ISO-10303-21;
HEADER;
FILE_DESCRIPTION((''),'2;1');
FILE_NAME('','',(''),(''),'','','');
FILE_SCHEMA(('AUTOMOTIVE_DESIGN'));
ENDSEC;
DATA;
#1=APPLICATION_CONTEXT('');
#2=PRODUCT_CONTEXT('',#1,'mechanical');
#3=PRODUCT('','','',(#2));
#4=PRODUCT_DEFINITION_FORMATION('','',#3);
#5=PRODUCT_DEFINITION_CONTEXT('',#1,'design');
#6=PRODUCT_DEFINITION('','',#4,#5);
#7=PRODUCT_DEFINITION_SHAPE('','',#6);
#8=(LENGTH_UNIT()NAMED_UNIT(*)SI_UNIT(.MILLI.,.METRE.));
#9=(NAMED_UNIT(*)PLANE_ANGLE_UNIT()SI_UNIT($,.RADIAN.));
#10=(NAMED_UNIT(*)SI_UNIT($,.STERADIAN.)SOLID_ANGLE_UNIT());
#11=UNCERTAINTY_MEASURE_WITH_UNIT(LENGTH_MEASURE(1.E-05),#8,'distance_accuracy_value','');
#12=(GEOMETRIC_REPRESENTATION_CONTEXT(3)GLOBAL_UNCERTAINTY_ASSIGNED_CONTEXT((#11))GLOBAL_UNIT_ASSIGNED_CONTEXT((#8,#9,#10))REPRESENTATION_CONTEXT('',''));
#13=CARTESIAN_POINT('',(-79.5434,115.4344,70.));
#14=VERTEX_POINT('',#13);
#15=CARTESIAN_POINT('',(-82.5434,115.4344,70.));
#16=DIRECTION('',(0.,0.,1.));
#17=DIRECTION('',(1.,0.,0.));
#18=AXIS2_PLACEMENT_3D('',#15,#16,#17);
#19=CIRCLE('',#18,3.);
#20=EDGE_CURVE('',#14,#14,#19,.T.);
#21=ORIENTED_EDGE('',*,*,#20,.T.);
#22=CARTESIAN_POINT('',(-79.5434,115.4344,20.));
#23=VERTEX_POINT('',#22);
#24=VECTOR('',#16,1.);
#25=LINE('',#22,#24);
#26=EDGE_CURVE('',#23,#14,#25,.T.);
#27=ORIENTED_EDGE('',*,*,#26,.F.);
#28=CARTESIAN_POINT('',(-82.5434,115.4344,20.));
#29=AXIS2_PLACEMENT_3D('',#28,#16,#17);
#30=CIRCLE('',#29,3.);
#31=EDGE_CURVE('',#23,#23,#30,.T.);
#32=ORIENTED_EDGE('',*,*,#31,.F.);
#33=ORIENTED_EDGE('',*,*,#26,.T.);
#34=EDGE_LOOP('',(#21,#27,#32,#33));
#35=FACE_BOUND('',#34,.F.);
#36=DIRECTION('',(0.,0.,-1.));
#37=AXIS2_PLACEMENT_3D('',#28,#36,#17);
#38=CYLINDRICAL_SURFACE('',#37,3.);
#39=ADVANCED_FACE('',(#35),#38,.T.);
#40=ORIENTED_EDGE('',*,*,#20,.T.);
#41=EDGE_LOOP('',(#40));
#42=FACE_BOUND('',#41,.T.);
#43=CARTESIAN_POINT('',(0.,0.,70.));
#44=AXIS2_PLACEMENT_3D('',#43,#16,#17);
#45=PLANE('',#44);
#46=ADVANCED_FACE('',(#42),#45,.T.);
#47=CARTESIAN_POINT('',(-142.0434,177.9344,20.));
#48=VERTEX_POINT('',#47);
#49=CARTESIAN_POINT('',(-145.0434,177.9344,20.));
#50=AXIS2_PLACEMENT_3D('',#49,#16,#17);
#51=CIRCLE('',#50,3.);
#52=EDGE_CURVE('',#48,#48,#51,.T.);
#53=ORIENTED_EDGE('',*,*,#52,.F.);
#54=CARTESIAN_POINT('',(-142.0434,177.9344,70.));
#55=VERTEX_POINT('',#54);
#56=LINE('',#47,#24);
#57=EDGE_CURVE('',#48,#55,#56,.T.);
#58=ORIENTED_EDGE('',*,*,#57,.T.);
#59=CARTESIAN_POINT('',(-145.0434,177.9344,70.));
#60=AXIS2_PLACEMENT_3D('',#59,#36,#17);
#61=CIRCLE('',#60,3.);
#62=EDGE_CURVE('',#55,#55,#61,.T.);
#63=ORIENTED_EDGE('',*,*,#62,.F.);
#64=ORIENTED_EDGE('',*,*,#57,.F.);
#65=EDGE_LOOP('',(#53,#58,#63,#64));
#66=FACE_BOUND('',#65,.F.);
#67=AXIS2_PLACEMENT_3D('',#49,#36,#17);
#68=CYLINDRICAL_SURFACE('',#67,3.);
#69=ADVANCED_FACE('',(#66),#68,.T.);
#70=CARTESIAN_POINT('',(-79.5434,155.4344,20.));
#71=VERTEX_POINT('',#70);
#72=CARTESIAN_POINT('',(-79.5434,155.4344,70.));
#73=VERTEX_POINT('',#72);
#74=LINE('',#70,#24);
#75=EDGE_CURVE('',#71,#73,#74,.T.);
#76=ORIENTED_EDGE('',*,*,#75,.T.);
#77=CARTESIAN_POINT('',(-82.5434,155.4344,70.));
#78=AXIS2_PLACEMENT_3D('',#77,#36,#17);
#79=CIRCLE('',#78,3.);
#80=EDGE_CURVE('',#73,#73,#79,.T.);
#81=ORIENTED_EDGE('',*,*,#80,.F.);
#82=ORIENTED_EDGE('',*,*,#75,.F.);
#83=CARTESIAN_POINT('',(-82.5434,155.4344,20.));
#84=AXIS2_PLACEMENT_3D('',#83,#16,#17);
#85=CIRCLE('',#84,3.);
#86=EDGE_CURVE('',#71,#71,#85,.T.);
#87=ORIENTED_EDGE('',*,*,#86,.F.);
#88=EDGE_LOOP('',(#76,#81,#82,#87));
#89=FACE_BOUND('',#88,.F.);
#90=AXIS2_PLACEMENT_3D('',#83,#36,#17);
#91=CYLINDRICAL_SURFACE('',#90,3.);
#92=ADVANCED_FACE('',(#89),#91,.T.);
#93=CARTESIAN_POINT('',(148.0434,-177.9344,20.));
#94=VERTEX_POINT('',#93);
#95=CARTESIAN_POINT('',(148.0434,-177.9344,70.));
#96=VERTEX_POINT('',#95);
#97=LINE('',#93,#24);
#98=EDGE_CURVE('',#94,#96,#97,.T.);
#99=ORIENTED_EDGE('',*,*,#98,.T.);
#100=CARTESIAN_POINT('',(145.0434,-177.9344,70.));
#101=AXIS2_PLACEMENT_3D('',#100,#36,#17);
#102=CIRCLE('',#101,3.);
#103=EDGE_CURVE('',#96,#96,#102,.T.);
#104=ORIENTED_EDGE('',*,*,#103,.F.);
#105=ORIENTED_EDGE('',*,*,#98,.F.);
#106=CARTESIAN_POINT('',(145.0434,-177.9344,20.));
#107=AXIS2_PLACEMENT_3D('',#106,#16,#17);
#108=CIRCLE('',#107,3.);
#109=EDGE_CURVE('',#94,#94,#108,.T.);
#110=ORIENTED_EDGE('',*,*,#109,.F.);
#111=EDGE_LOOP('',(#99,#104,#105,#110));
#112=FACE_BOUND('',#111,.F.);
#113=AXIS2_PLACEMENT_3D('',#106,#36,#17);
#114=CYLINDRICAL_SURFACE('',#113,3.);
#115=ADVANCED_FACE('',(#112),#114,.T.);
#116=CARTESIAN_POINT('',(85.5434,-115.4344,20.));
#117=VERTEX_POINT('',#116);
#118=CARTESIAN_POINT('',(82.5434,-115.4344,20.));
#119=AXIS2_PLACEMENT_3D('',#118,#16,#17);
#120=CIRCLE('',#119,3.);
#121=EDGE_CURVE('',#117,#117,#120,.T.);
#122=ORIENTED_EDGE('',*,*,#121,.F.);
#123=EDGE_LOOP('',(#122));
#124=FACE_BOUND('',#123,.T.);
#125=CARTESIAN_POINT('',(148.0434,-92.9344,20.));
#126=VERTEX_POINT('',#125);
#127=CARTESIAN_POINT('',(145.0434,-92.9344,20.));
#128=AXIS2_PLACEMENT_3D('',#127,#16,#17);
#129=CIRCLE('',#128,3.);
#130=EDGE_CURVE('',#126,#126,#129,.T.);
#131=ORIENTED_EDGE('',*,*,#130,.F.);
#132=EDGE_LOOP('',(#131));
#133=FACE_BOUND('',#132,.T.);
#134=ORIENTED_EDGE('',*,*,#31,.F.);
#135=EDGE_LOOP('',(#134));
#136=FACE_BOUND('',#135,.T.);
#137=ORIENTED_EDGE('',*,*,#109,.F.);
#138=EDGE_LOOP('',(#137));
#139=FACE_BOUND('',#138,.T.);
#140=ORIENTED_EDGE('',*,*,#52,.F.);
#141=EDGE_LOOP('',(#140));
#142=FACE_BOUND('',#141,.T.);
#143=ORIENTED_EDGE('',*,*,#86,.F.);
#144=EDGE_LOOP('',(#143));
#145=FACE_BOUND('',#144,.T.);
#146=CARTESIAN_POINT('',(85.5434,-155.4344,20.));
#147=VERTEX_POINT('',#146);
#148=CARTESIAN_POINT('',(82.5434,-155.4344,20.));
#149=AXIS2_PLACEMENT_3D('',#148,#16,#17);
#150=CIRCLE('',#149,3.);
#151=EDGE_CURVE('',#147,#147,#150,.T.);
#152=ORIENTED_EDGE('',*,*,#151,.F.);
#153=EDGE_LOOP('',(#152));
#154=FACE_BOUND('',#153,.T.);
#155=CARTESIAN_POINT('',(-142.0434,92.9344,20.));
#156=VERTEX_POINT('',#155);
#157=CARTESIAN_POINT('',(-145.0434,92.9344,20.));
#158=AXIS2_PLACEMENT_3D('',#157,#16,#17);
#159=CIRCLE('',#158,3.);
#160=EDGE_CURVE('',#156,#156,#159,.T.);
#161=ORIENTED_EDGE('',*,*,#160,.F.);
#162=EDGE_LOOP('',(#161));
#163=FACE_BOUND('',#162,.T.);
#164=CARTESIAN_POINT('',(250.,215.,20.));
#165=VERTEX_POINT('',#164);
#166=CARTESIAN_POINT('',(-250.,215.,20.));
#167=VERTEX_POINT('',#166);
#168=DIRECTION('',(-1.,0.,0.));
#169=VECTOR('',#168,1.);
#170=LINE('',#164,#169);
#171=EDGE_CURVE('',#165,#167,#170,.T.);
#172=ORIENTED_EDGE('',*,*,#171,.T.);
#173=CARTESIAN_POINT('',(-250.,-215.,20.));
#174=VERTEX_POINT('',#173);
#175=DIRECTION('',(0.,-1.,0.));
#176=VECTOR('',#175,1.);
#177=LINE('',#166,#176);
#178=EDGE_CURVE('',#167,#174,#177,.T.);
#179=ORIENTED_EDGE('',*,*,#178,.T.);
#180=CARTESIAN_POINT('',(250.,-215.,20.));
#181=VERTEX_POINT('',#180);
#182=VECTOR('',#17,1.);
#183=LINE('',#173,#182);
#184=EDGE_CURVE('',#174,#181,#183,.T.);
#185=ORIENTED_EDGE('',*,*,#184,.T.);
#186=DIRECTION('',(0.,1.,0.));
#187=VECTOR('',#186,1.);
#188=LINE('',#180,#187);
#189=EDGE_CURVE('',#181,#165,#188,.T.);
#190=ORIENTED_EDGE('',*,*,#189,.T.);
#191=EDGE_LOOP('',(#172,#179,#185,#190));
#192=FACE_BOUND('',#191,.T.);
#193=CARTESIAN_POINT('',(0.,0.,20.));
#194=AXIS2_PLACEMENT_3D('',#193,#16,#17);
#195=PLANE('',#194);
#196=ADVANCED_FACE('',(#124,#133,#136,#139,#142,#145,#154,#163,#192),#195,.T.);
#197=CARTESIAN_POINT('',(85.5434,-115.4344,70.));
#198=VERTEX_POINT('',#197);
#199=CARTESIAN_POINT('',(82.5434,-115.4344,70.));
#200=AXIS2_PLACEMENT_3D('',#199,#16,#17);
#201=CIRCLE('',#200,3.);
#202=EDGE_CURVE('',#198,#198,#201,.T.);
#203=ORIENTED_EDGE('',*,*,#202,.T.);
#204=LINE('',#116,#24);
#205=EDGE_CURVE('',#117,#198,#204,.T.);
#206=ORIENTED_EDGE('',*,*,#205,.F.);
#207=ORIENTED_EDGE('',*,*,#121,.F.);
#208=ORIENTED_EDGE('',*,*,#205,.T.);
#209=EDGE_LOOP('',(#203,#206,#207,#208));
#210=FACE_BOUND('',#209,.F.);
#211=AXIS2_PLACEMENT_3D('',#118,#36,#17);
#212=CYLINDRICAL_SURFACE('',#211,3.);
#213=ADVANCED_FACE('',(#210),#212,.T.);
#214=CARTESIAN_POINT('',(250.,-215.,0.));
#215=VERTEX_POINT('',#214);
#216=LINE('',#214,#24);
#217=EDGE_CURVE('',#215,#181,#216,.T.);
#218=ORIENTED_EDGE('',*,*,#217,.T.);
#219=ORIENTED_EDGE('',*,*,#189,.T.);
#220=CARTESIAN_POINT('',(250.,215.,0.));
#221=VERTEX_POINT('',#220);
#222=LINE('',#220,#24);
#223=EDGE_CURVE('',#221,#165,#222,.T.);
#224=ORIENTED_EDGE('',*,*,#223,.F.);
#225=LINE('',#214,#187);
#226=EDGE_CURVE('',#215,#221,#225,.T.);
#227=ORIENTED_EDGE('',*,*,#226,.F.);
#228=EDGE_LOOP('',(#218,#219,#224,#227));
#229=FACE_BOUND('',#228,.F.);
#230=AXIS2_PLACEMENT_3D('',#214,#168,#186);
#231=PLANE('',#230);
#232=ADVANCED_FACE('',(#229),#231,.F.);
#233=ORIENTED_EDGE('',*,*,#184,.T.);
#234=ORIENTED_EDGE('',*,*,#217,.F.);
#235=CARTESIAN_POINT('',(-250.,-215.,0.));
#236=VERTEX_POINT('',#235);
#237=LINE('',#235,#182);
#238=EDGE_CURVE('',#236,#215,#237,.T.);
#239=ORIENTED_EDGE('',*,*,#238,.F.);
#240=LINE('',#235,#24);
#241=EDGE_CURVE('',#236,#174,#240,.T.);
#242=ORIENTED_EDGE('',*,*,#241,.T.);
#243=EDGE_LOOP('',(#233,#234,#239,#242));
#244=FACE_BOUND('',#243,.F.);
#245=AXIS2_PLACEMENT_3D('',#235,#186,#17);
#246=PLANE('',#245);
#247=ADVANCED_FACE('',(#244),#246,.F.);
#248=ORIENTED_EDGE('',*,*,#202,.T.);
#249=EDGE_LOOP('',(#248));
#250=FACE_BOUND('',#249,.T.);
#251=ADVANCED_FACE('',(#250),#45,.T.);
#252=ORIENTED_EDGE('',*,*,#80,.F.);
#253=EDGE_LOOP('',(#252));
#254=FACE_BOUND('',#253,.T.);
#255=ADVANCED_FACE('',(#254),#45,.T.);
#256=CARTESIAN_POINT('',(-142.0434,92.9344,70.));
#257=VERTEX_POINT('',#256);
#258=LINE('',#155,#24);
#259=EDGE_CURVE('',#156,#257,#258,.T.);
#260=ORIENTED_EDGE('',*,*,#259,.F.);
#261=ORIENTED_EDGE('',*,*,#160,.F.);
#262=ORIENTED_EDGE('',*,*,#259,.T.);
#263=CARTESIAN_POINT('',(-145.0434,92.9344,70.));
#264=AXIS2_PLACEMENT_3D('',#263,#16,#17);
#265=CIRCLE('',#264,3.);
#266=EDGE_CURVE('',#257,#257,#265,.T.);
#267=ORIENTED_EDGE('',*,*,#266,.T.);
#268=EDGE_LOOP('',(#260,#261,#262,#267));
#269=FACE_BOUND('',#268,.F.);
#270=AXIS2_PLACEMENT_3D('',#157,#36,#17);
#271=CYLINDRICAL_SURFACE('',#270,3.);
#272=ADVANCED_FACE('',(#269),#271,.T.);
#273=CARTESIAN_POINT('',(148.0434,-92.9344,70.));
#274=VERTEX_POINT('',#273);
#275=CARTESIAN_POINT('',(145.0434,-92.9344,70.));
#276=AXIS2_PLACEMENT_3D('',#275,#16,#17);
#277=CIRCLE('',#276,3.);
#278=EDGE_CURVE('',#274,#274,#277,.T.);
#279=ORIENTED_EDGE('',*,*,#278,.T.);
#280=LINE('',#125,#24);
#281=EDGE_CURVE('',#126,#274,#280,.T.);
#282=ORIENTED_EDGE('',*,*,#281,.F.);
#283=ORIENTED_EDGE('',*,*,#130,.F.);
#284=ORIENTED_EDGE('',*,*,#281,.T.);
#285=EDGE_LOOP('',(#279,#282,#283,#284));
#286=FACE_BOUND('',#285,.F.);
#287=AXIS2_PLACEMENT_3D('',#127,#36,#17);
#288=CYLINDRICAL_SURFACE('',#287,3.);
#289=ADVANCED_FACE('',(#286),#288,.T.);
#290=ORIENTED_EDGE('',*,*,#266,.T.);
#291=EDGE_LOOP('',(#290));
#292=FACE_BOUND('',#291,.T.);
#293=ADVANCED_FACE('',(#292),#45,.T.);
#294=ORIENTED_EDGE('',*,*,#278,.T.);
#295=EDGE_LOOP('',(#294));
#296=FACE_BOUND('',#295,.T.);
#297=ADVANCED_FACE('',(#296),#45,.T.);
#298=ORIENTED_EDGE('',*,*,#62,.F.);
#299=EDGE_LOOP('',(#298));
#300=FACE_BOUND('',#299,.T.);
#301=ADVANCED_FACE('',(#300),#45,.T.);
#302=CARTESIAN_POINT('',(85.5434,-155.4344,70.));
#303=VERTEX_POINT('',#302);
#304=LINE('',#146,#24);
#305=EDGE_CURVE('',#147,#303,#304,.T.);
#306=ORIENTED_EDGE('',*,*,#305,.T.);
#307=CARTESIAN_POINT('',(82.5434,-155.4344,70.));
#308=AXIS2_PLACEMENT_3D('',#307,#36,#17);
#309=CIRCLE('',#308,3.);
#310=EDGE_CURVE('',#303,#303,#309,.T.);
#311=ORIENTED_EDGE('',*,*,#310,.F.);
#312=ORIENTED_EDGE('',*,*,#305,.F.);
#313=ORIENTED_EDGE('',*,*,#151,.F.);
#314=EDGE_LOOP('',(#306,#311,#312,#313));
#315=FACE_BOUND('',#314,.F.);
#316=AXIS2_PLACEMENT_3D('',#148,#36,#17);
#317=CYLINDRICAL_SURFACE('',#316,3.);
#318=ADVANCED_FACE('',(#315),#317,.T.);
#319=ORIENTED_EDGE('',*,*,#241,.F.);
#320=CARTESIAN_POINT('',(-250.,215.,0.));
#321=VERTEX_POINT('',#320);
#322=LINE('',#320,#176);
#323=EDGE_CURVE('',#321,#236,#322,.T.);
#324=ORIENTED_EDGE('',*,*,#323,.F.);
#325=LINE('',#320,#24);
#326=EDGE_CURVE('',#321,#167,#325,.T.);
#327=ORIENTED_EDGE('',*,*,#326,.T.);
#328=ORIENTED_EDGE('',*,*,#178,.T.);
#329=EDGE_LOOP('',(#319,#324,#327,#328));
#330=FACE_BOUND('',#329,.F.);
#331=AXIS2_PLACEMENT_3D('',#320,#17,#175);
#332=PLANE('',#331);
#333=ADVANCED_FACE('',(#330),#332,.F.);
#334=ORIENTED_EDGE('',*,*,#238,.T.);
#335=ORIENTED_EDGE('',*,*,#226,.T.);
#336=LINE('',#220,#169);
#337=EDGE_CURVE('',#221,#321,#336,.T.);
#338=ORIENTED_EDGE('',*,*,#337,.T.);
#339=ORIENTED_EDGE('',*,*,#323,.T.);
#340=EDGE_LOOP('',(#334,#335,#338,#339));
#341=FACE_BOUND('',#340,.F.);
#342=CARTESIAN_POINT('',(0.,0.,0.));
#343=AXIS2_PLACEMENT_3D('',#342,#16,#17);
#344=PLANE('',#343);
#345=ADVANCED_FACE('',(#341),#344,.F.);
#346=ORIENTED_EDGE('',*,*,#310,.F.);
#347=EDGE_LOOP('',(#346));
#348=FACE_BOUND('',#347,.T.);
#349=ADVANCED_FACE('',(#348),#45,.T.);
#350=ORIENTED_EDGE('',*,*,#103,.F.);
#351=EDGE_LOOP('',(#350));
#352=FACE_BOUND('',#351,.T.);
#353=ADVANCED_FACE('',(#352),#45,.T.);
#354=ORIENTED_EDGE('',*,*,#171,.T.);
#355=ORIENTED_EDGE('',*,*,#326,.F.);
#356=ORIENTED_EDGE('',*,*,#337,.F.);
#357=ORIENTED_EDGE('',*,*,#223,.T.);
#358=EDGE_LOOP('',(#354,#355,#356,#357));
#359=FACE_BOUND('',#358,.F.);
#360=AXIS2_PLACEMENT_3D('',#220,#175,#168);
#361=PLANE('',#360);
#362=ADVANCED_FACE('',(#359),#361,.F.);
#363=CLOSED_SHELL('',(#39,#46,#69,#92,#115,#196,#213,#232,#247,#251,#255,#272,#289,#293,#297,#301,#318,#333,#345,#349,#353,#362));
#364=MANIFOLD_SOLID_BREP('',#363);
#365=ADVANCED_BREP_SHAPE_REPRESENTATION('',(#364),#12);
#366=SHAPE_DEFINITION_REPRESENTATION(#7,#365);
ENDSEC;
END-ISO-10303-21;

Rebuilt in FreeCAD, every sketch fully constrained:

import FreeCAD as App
import Part
import Sketcher


def add_polygon(sketch, points):
    """Adds a closed chain of lines whose ends are joined by coincident constraints."""
    first, n = sketch.GeometryCount, len(points)
    for a, b in zip(points, points[1:] + points[:1]):
        sketch.addGeometry(Part.LineSegment(App.Vector(*a, 0), App.Vector(*b, 0)), False)
    for i in range(n):
        sketch.addConstraint(Sketcher.Constraint("Coincident", first + i, 2, first + (i + 1) % n, 1))

doc = App.newDocument("Part")
body = doc.addObject("PartDesign::Body", "Body")

sketch1 = body.newObject("Sketcher::SketchObject", "Sketch")
sketch1.AttachmentSupport = (doc.getObject("XY_Plane"), [""])
sketch1.MapMode = "FlatFace"
add_polygon(sketch1, [(-250, 215), (-250, -215), (250, -215), (250, 215)])
sketch1.addConstraint(Sketcher.Constraint("Vertical", 0))
sketch1.addConstraint(Sketcher.Constraint("Horizontal", 1))
sketch1.addConstraint(Sketcher.Constraint("Vertical", 2))
sketch1.addConstraint(Sketcher.Constraint("Horizontal", 3))
sketch1.addConstraint(Sketcher.Constraint("Symmetric", 0, 2, 2, 2, -1, 1))
sketch1.addConstraint(Sketcher.Constraint("DistanceX", 1, 1, 1, 2, 500.0))
sketch1.addConstraint(Sketcher.Constraint("DistanceY", 0, 2, 0, 1, 430.0))
pad1 = body.newObject("PartDesign::Pad", "Pad")
pad1.Profile = sketch1
pad1.Length = 20

sketch2 = body.newObject("Sketcher::SketchObject", "Sketch001")
sketch2.AttachmentSupport = (doc.getObject("XY_Plane"), [""])
sketch2.MapMode = "FlatFace"
sketch2.AttachmentOffset = App.Placement(App.Vector(0, 0, 20), App.Rotation())
sketch2.addGeometry(Part.Circle(App.Vector(-82.5, 155.4, 0), App.Vector(0, 0, 1), 3), False)
sketch2.addGeometry(Part.Circle(App.Vector(-145, 177.9, 0), App.Vector(0, 0, 1), 3), False)
sketch2.addGeometry(Part.Circle(App.Vector(-145, 92.9, 0), App.Vector(0, 0, 1), 3), False)
sketch2.addGeometry(Part.Circle(App.Vector(-82.5, 115.4, 0), App.Vector(0, 0, 1), 3), False)
sketch2.addConstraint(Sketcher.Constraint("Equal", 0, 1))
sketch2.addConstraint(Sketcher.Constraint("Equal", 1, 2))
sketch2.addConstraint(Sketcher.Constraint("Equal", 2, 3))
sketch2.addConstraint(Sketcher.Constraint("Vertical", 1, 3, 2, 3))
sketch2.addConstraint(Sketcher.Constraint("Vertical", 0, 3, 3, 3))
sketch2.addConstraint(Sketcher.Constraint("Diameter", 0, 6.0))
sketch2.addConstraint(Sketcher.Constraint("DistanceY", 2, 3, 1, 3, 85.0))
sketch2.addConstraint(Sketcher.Constraint("DistanceY", 3, 3, 0, 3, 40.0))
sketch2.addConstraint(Sketcher.Constraint("DistanceX", 1, 3, 0, 3, 62.5))
sketch2.addConstraint(Sketcher.Constraint("DistanceY", 0, 3, 1, 3, 22.5))
sketch2.addConstraint(Sketcher.Constraint("DistanceX", 0, 3, -1, 1, 82.5434))
sketch2.addConstraint(Sketcher.Constraint("DistanceY", -1, 1, 0, 3, 155.4344))
pad2 = body.newObject("PartDesign::Pad", "Pad001")
pad2.Profile = sketch2
pad2.Length = 50

sketch3 = body.newObject("Sketcher::SketchObject", "Sketch002")
sketch3.AttachmentSupport = (doc.getObject("XY_Plane"), [""])
sketch3.MapMode = "FlatFace"
sketch3.AttachmentOffset = App.Placement(App.Vector(0, 0, 20), App.Rotation())
sketch3.addGeometry(Part.Circle(App.Vector(82.5, -155.4, 0), App.Vector(0, 0, 1), 3), False)
sketch3.addGeometry(Part.Circle(App.Vector(145, -177.9, 0), App.Vector(0, 0, 1), 3), False)
sketch3.addGeometry(Part.Circle(App.Vector(145, -92.9, 0), App.Vector(0, 0, 1), 3), False)
sketch3.addGeometry(Part.Circle(App.Vector(82.5, -115.4, 0), App.Vector(0, 0, 1), 3), False)
sketch3.addConstraint(Sketcher.Constraint("Equal", 0, 1))
sketch3.addConstraint(Sketcher.Constraint("Equal", 1, 2))
sketch3.addConstraint(Sketcher.Constraint("Equal", 2, 3))
sketch3.addConstraint(Sketcher.Constraint("Vertical", 1, 3, 2, 3))
sketch3.addConstraint(Sketcher.Constraint("Vertical", 0, 3, 3, 3))
sketch3.addConstraint(Sketcher.Constraint("Diameter", 0, 6.0))
sketch3.addConstraint(Sketcher.Constraint("DistanceY", 1, 3, 2, 3, 85.0))
sketch3.addConstraint(Sketcher.Constraint("DistanceY", 0, 3, 3, 3, 40.0))
sketch3.addConstraint(Sketcher.Constraint("DistanceX", 0, 3, 1, 3, 62.5))
sketch3.addConstraint(Sketcher.Constraint("DistanceY", 1, 3, 0, 3, 22.5))
sketch3.addConstraint(Sketcher.Constraint("DistanceX", -1, 1, 0, 3, 82.5434))
sketch3.addConstraint(Sketcher.Constraint("DistanceY", 0, 3, -1, 1, 155.4344))
pad3 = body.newObject("PartDesign::Pad", "Pad002")
pad3.Profile = sketch3
pad3.Length = 50

doc.recompute()
